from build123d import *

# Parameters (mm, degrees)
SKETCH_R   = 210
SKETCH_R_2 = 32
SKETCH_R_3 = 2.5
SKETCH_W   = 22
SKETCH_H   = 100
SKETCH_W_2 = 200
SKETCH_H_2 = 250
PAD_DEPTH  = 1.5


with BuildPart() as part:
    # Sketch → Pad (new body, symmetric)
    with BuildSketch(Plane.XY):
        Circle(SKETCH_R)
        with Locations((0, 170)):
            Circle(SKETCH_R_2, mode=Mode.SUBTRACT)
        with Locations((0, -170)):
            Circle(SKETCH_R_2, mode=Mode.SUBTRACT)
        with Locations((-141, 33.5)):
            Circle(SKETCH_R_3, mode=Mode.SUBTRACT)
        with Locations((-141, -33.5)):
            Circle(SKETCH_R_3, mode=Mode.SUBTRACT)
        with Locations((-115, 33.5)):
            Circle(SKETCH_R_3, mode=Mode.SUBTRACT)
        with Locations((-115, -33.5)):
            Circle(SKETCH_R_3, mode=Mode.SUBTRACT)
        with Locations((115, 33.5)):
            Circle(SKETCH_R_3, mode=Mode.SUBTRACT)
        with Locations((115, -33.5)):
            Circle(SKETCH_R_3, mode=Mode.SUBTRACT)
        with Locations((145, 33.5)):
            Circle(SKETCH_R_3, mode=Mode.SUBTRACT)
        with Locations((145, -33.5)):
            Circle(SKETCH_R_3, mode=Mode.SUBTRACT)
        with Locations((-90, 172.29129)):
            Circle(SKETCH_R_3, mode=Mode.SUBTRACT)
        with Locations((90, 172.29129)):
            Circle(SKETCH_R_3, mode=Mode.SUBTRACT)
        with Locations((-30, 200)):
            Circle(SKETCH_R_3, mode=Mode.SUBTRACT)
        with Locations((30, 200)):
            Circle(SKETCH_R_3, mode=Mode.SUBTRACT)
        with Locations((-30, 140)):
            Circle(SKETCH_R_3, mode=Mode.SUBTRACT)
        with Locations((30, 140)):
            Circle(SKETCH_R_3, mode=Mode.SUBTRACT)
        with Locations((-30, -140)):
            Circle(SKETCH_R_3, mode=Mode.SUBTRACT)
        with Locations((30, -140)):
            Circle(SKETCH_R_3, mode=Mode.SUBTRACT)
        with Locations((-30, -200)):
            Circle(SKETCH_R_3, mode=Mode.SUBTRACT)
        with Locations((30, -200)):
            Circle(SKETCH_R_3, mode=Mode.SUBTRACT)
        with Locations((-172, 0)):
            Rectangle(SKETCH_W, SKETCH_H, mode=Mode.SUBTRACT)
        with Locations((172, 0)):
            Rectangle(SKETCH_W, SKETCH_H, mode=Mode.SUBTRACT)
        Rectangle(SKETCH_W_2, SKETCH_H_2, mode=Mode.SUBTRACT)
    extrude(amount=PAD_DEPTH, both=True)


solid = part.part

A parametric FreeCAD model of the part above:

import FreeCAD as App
import Part
import Sketcher
from FreeCAD import Vector
Q = App.Units.Quantity


def add_polygon(sketch, points):
    """Adds a closed chain of lines whose ends are joined by coincident constraints."""
    first, n = sketch.GeometryCount, len(points)
    for a, b in zip(points, points[1:] + points[:1]):
        sketch.addGeometry(Part.LineSegment(App.Vector(*a, 0), App.Vector(*b, 0)), False)
    for i in range(n):
        sketch.addConstraint(Sketcher.Constraint("Coincident", first + i, 2, first + (i + 1) % n, 1))

doc = App.newDocument("Part")
body = doc.addObject("PartDesign::Body", "Body")

sketch1 = body.newObject("Sketcher::SketchObject", "Sketch")
sketch1.AttachmentSupport = (doc.getObject("XY_Plane"), [""])
sketch1.MapMode = "FlatFace"
sketch1.addGeometry(Part.Circle(Vector(0, 0, 0), Vector(0, 0, 1), 210), False)
sketch1.addGeometry(Part.Circle(Vector(-30, -200, 0), Vector(0, 0, 1), 2.5), False)
sketch1.addGeometry(Part.Circle(Vector(-30, -140, 0), Vector(0, 0, 1), 2.5), False)
sketch1.addGeometry(Part.Circle(Vector(-141, -33.5, 0), Vector(0, 0, 1), 2.5), False)
sketch1.addGeometry(Part.Circle(Vector(-115, -33.5, 0), Vector(0, 0, 1), 2.5), False)
sketch1.addGeometry(Part.Circle(Vector(30, -200, 0), Vector(0, 0, 1), 2.5), False)
sketch1.addGeometry(Part.Circle(Vector(0, -170, 0), Vector(0, 0, 1), 32), False)
sketch1.addGeometry(Part.Circle(Vector(30, -140, 0), Vector(0, 0, 1), 2.5), False)
sketch1.addGeometry(Part.Circle(Vector(115, -33.5, 0), Vector(0, 0, 1), 2.5), False)
sketch1.addGeometry(Part.Circle(Vector(145, -33.5, 0), Vector(0, 0, 1), 2.5), False)
add_polygon(sketch1, [(-161, -50), (-183, -50), (-183, 50), (-161, 50)])
sketch1.addGeometry(Part.Circle(Vector(-141, 33.5, 0), Vector(0, 0, 1), 2.5), False)
sketch1.addGeometry(Part.Circle(Vector(-115, 33.5, 0), Vector(0, 0, 1), 2.5), False)
sketch1.addGeometry(Part.Circle(Vector(-30, 140, 0), Vector(0, 0, 1), 2.5), False)
sketch1.addGeometry(Part.Circle(Vector(-90, 172.29129, 0), Vector(0, 0, 1), 2.5), False)
sketch1.addGeometry(Part.Circle(Vector(-30, 200, 0), Vector(0, 0, 1), 2.5), False)
add_polygon(sketch1, [(100, -125), (-100, -125), (-100, 125), (100, 125)])
sketch1.addGeometry(Part.Circle(Vector(115, 33.5, 0), Vector(0, 0, 1), 2.5), False)
add_polygon(sketch1, [(183, -50), (161, -50), (161, 50), (183, 50)])
sketch1.addGeometry(Part.Circle(Vector(145, 33.5, 0), Vector(0, 0, 1), 2.5), False)
sketch1.addGeometry(Part.Circle(Vector(30, 140, 0), Vector(0, 0, 1), 2.5), False)
sketch1.addGeometry(Part.Circle(Vector(0, 170, 0), Vector(0, 0, 1), 32), False)
sketch1.addGeometry(Part.Circle(Vector(30, 200, 0), Vector(0, 0, 1), 2.5), False)
sketch1.addGeometry(Part.Circle(Vector(90, 172.29129, 0), Vector(0, 0, 1), 2.5), False)
sketch1.addConstraint([
    Sketcher.Constraint("Horizontal", 10),
    Sketcher.Constraint("Vertical", 11),
    Sketcher.Constraint("Horizontal", 12),
    Sketcher.Constraint("Vertical", 13),
    Sketcher.Constraint("Horizontal", 19),
    Sketcher.Constraint("Vertical", 20),
    Sketcher.Constraint("Horizontal", 21),
    Sketcher.Constraint("Vertical", 22),
    Sketcher.Constraint("Horizontal", 24),
    Sketcher.Constraint("Vertical", 25),
    Sketcher.Constraint("Horizontal", 26),
    Sketcher.Constraint("Vertical", 27),
    Sketcher.Constraint("Coincident", 0, 3, -1, 1),
    Sketcher.Constraint("Equal", 1, 2),
    Sketcher.Constraint("Equal", 2, 3),
    Sketcher.Constraint("Equal", 3, 4),
    Sketcher.Constraint("Equal", 4, 5),
    Sketcher.Constraint("Equal", 5, 7),
    Sketcher.Constraint("Equal", 7, 8),
    Sketcher.Constraint("Equal", 8, 9),
    Sketcher.Constraint("Equal", 9, 14),
    Sketcher.Constraint("Equal", 14, 15),
    Sketcher.Constraint("Equal", 15, 16),
    Sketcher.Constraint("Equal", 16, 17),
    Sketcher.Constraint("Equal", 17, 18),
    Sketcher.Constraint("Equal", 18, 23),
    Sketcher.Constraint("Equal", 23, 28),
    Sketcher.Constraint("Equal", 28, 29),
    Sketcher.Constraint("Equal", 6, 30),
    Sketcher.Constraint("Equal", 29, 31),
    Sketcher.Constraint("Equal", 31, 32),
    Sketcher.Constraint("Symmetric", 8, 3, 15, 3, -1, 1),
    Sketcher.Constraint("Symmetric", 7, 3, 16, 3, -1, 1),
    Sketcher.Constraint("Symmetric", 5, 3, 18, 3, -1, 1),
    Sketcher.Constraint("Symmetric", 4, 3, 23, 3, -1, 1),
    Sketcher.Constraint("Symmetric", 2, 3, 29, 3, -1, 1),
    Sketcher.Constraint("Symmetric", 6, 3, 30, 3, -1, 1),
    Sketcher.Constraint("Symmetric", 1, 3, 31, 3, -1, 1),
    Sketcher.Constraint("Symmetric", 19, 2, 21, 2, -1, 1),
    Sketcher.Constraint("Symmetric", 12, 2, 24, 2, -1, 1),
    Sketcher.Constraint("Symmetric", 10, 2, 26, 2, -1, 1),
    Sketcher.Constraint("Symmetric", 1, 3, 5, 3, -2),
    Sketcher.Constraint("Symmetric", 2, 3, 7, 3, -2),
    Sketcher.Constraint("Symmetric", 4, 3, 8, 3, -2),
    Sketcher.Constraint("Symmetric", 17, 3, 32, 3, -2),
    Sketcher.Constraint("Symmetric", 3, 3, 14, 3, -1),
    Sketcher.Constraint("Symmetric", 9, 3, 28, 3, -1),
    Sketcher.Constraint("PointOnObject", 6, 3, -2),
    Sketcher.Constraint("Horizontal", 3, 3, 4, 3),
    Sketcher.Constraint("Horizontal", 8, 3, 9, 3),
    Sketcher.Constraint("Horizontal", 13, 2, 24, 2),
    Sketcher.Constraint("Vertical", 1, 3, 2, 3),
    Sketcher.Constraint("Diameter", 0, Q("420 mm")),
    Sketcher.Constraint("Diameter", 1, Q("5 mm")),
    Sketcher.Constraint("Diameter", 6, Q("64 mm")),
    Sketcher.Constraint("DistanceX", 10, 2, 10, 1, Q("22 mm")),
    Sketcher.Constraint("DistanceX", 19, 2, 19, 1, Q("200 mm")),
    Sketcher.Constraint("DistanceY", 11, 1, 11, 2, Q("100 mm")),
    Sketcher.Constraint("DistanceY", 20, 1, 20, 2, Q("250 mm")),
    Sketcher.Constraint("DistanceX", 1, 3, -1, 1, Q("30 mm")),
    Sketcher.Constraint("DistanceY", 1, 3, -1, 1, Q("200 mm")),
    Sketcher.Constraint("DistanceY", 2, 3, -1, 1, Q("140 mm")),
    Sketcher.Constraint("DistanceX", 3, 3, -1, 1, Q("141 mm")),
    Sketcher.Constraint("DistanceX", 4, 3, -1, 1, Q("115 mm")),
    Sketcher.Constraint("DistanceY", 6, 3, -1, 1, Q("170 mm")),
    Sketcher.Constraint("DistanceX", -1, 1, 9, 3, Q("145 mm")),
    Sketcher.Constraint("DistanceX", 17, 3, -1, 1, Q("90 mm")),
    Sketcher.Constraint("DistanceX", 10, 2, -1, 1, Q("183 mm")),
    Sketcher.Constraint("DistanceY", 3, 3, 14, 3, Q("67 mm")),
    Sketcher.Constraint("DistanceY", -1, 1, 17, 3, Q("172.29129 mm")),
])
pad1 = body.newObject("PartDesign::Pad", "Pad")
pad1.Profile = sketch1
pad1.Length = 3
pad1.Midplane = True

doc.recompute()
